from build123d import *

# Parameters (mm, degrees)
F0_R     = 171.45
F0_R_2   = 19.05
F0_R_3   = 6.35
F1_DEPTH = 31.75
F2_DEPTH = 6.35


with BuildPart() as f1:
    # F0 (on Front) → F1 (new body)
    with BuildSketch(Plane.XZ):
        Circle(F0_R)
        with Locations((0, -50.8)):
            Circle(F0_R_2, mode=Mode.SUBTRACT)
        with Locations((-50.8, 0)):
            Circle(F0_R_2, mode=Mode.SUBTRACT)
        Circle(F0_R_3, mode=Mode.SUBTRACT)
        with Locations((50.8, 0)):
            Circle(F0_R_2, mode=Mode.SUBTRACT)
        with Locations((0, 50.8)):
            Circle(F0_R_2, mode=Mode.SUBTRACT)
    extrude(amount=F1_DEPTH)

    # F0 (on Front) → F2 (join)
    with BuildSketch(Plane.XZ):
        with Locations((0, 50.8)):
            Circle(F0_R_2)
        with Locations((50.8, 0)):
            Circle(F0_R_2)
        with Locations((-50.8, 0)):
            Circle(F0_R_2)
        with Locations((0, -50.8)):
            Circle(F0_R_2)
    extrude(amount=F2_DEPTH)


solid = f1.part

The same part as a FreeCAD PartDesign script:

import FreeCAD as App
import Part
import Sketcher

V = App.Vector
Q = App.Units.Quantity

doc = App.newDocument("Part")
params = doc.addObject("Spreadsheet::Sheet", "Params")
for row, (alias, value) in enumerate([
    ("sketch1_diameter", "13.5 in"),
    ("sketch1_diameter2", "1.5 in"),
    ("sketch1_diameter3", "0.5 in"),
    ("pad1_length", "1.25 in"),
    ("sketch2_diameter", "1.5 in"),
    ("pad2_length", "0.25 in"),
], start=1):
    params.set(f"A{row}", alias)
    params.set(f"B{row}", "=" + value)
    params.setAlias(f"B{row}", alias)

body = doc.addObject("PartDesign::Body", "Body")

# Sketch on XZ plane
sketch1 = body.newObject("Sketcher::SketchObject", "Sketch")
sketch1.AttachmentSupport = (doc.getObject("XZ_Plane"), [""])
sketch1.MapMode = "FlatFace"
sketch1.addGeometry([
    Part.Circle(V(0, 0, 0), V(0, 0, 1), 171.45),  # 0
    Part.Circle(V(0, -50.8, 0), V(0, 0, 1), 19.05),  # 1
    Part.Circle(V(-50.8, 0, 0), V(0, 0, 1), 19.05),  # 2
    Part.Circle(V(0, 0, 0), V(0, 0, 1), 6.35),  # 3
    Part.Circle(V(50.8, 0, 0), V(0, 0, 1), 19.05),  # 4
    Part.Circle(V(0, 50.8, 0), V(0, 0, 1), 19.05),  # 5
], False)
sketch1.addConstraint([
    Sketcher.Constraint("Coincident", 0, 3, -1, 1),
    Sketcher.Constraint("Coincident", 3, 3, -1, 1),
    Sketcher.Constraint("Equal", 1, 2),
    Sketcher.Constraint("Equal", 2, 4),
    Sketcher.Constraint("Equal", 4, 5),
    Sketcher.Constraint("Symmetric", 2, 3, 4, 3, -1, 1),
    Sketcher.Constraint("Symmetric", 1, 3, 5, 3, -1, 1),
    Sketcher.Constraint("PointOnObject", 1, 3, -2),
    Sketcher.Constraint("PointOnObject", 2, 3, -1),
    Sketcher.Constraint("Diameter", 0, Q("13.5 in")),
    Sketcher.Constraint("Diameter", 1, Q("1.5 in")),
    Sketcher.Constraint("Diameter", 3, Q("0.5 in")),
    Sketcher.Constraint("DistanceY", 1, 3, -1, 1, Q("2 in")),
    Sketcher.Constraint("DistanceX", 2, 3, -1, 1, Q("2 in")),
])
sketch1.setExpression("Constraints[9]", "Params.sketch1_diameter")
sketch1.setExpression("Constraints[10]", "Params.sketch1_diameter2")
sketch1.setExpression("Constraints[11]", "Params.sketch1_diameter3")
pad1 = body.newObject("PartDesign::Pad", "Pad")
pad1.Profile = sketch1
pad1.setExpression("Length", "Params.pad1_length")

# Sketch on XZ plane
sketch2 = body.newObject("Sketcher::SketchObject", "Sketch001")
sketch2.AttachmentSupport = (doc.getObject("XZ_Plane"), [""])
sketch2.MapMode = "FlatFace"
sketch2.addGeometry([
    Part.Circle(V(0, 50.8, 0), V(0, 0, 1), 19.05),
    Part.Circle(V(50.8, 0, 0), V(0, 0, 1), 19.05),
    Part.Circle(V(-50.8, 0, 0), V(0, 0, 1), 19.05),
    Part.Circle(V(0, -50.8, 0), V(0, 0, 1), 19.05),
], False)
sketch2.addConstraint([
    Sketcher.Constraint("Equal", 0, 1),
    Sketcher.Constraint("Equal", 1, 2),
    Sketcher.Constraint("Equal", 2, 3),
    Sketcher.Constraint("Symmetric", 1, 3, 2, 3, -1, 1),
    Sketcher.Constraint("Symmetric", 0, 3, 3, 3, -1, 1),
    Sketcher.Constraint("PointOnObject", 0, 3, -2),
    Sketcher.Constraint("PointOnObject", 1, 3, -1),
    Sketcher.Constraint("Diameter", 0, Q("1.5 in")),
    Sketcher.Constraint("DistanceY", -1, 1, 0, 3, Q("2 in")),
    Sketcher.Constraint("DistanceX", -1, 1, 1, 3, Q("2 in")),
])
sketch2.setExpression("Constraints[7]", "Params.sketch2_diameter")
pad2 = body.newObject("PartDesign::Pad", "Pad001")
pad2.Profile = sketch2
pad2.setExpression("Length", "Params.pad2_length")

doc.recompute()
